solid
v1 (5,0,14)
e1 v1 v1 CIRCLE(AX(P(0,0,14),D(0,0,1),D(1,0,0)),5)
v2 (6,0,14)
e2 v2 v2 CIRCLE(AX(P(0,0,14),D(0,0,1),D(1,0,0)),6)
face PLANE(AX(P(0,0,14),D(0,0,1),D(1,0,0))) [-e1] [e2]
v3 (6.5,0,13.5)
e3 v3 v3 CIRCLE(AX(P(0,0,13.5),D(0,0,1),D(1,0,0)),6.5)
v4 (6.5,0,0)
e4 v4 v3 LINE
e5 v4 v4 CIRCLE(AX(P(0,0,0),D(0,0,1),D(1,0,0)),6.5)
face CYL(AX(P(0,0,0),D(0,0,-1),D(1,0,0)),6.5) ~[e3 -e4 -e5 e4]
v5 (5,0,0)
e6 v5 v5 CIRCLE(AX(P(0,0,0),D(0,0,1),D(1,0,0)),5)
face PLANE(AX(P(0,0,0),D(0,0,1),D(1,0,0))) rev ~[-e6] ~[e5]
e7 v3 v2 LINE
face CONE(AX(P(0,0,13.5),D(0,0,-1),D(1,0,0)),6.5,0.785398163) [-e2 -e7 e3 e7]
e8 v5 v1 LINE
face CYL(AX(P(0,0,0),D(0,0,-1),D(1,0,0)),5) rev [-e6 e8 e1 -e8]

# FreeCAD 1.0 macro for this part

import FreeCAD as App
import Part
import Sketcher
from FreeCAD import Vector
Q = App.Units.Quantity


def edges_at(feature, points):
    """Names of the edges that pass closest to the given points."""
    edges = feature.Shape.Edges
    near = lambda p: min(range(len(edges)), key=lambda i: edges[i].distToShape(Part.Vertex(*p))[0])
    return sorted({f"Edge{near(p) + 1}" for p in points})

doc = App.newDocument("Part")
body = doc.addObject("PartDesign::Body", "Body")

# Sketch on XY plane
sketch1 = doc.addObject("Sketcher::SketchObject", "Sketch")
body.addObject(sketch1)
sketch1.AttachmentSupport = (doc.XY_Plane, [""])
sketch1.MapMode = "FlatFace"
sketch1.addGeometry([
    Part.Circle(Vector(0, 0, 0), Vector(0, 0, 1), 6),
    Part.Circle(Vector(0, 0, 0), Vector(0, 0, 1), 5),
], False)
sketch1.addConstraint([
    Sketcher.Constraint("Coincident", 0, 3, -1, 1),
    Sketcher.Constraint("Coincident", 1, 3, -1, 1),
    Sketcher.Constraint("Diameter", 0, Q("13 mm")),
    Sketcher.Constraint("Diameter", 1, Q("10 mm")),
])
pad1 = doc.addObject("PartDesign::Pad", "Pad")
body.addObject(pad1)
pad1.Profile = sketch1
pad1.Length = 14
doc.recompute()

chamfer = doc.addObject("PartDesign::Chamfer", "Chamfer")
body.addObject(chamfer)
chamfer.Base = (pad1, edges_at(pad1, [(-6.5, 0, 14)]))
chamfer.Size = 0.5

doc.recompute()
